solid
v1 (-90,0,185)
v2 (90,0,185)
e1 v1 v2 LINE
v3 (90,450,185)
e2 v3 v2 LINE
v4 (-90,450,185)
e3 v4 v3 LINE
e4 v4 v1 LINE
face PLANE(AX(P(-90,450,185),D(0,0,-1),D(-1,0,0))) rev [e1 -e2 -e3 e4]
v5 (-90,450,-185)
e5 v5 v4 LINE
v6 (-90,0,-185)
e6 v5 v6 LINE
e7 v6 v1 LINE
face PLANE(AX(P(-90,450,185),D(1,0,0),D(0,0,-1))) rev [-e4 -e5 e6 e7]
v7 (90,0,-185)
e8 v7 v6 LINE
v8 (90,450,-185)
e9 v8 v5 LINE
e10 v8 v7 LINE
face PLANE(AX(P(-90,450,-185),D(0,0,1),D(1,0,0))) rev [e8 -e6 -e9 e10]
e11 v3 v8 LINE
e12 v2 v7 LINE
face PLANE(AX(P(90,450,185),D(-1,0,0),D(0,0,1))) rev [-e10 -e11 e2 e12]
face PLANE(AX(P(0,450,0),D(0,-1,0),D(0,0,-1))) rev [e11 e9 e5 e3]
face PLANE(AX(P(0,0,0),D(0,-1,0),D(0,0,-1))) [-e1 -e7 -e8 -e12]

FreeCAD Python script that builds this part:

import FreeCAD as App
import Part
import Sketcher
Q = App.Units.Quantity


def add_polygon(sketch, points):
    """Adds a closed chain of lines whose ends are joined by coincident constraints."""
    first, n = sketch.GeometryCount, len(points)
    for a, b in zip(points, points[1:] + points[:1]):
        sketch.addGeometry(Part.LineSegment(App.Vector(*a, 0), App.Vector(*b, 0)), False)
    for i in range(n):
        sketch.addConstraint(Sketcher.Constraint("Coincident", first + i, 2, first + (i + 1) % n, 1))

doc = App.newDocument("Part")
body = doc.addObject("PartDesign::Body", "Body")

# Sketch on XZ plane
sketch1 = body.newObject("Sketcher::SketchObject", "Sketch")
sketch1.AttachmentSupport = (doc.getObject("XZ_Plane"), [""])
sketch1.MapMode = "FlatFace"
add_polygon(sketch1, [(-90, -185), (-90, 185), (90, 185), (90, -185)])  # lines 0-3
sketch1.addConstraint(Sketcher.Constraint("Vertical", 0))
sketch1.addConstraint(Sketcher.Constraint("Horizontal", 1))
sketch1.addConstraint(Sketcher.Constraint("Vertical", 2))
sketch1.addConstraint(Sketcher.Constraint("Horizontal", 3))
sketch1.addConstraint(Sketcher.Constraint("Symmetric", 0, 2, 2, 2, -1, 1))
sketch1.addConstraint(Sketcher.Constraint("DistanceX", 1, 1, 1, 2, Q("180 mm")))
sketch1.addConstraint(Sketcher.Constraint("DistanceY", 0, 1, 0, 2, Q("370 mm")))
pad1 = body.newObject("PartDesign::Pad", "Pad")
pad1.Profile = sketch1
pad1.Length = 450
pad1.Reversed = True

doc.recompute()
